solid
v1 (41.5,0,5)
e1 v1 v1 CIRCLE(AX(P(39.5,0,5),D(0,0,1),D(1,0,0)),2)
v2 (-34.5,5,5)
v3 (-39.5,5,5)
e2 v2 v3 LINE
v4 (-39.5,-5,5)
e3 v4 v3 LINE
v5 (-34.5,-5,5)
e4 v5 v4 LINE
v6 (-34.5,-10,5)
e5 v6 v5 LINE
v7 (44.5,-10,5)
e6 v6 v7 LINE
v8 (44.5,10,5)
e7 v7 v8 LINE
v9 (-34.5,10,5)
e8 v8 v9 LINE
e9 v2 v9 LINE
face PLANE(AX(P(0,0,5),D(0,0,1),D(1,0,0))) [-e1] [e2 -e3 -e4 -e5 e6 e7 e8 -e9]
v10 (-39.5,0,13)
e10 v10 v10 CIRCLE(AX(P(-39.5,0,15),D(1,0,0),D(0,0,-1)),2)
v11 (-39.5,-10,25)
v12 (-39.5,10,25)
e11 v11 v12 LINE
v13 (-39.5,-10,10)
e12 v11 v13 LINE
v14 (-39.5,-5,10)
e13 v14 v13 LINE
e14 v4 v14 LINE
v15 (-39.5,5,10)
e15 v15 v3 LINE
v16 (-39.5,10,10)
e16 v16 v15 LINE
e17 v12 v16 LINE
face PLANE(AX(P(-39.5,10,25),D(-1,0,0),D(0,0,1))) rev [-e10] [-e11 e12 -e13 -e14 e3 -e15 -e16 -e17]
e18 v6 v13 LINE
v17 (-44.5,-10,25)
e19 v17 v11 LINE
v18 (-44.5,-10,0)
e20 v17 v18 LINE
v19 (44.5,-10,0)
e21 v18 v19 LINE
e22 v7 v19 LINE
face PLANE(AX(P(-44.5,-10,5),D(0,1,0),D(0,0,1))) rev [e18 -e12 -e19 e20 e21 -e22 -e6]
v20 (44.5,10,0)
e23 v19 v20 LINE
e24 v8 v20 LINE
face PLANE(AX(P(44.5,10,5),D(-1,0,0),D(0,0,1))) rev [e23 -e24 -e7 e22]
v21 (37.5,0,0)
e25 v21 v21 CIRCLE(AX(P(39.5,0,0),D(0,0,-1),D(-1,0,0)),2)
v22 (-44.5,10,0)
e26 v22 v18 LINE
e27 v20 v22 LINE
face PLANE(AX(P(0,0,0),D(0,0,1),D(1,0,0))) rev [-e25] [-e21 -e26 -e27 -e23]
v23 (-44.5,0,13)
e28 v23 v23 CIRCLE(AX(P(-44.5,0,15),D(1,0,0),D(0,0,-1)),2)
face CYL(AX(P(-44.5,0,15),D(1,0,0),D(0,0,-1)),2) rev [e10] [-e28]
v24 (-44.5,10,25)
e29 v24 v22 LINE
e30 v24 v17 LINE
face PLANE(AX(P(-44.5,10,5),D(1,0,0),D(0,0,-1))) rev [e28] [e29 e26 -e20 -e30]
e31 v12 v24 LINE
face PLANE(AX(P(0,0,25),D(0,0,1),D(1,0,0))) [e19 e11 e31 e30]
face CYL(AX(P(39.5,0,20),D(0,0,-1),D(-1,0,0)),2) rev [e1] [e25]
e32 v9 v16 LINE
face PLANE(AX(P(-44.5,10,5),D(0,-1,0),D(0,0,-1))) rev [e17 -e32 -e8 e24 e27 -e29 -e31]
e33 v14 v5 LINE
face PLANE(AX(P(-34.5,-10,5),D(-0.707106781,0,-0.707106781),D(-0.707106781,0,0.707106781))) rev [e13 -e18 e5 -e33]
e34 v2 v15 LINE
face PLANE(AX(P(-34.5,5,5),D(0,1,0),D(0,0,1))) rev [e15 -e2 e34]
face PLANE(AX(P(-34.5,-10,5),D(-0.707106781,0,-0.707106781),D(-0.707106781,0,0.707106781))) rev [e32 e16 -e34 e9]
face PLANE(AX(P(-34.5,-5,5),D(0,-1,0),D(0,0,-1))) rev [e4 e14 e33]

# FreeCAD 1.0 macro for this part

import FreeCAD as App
import Part
import Sketcher
Q = App.Units.Quantity


def add_polygon(sketch, points):
    """Adds a closed chain of lines whose ends are joined by coincident constraints."""
    first, n = sketch.GeometryCount, len(points)
    for a, b in zip(points, points[1:] + points[:1]):
        sketch.addGeometry(Part.LineSegment(App.Vector(*a, 0), App.Vector(*b, 0)), False)
    for i in range(n):
        sketch.addConstraint(Sketcher.Constraint("Coincident", first + i, 2, first + (i + 1) % n, 1))

doc = App.newDocument("Part")
body = doc.addObject("PartDesign::Body", "Body")

sketch1 = body.newObject("Sketcher::SketchObject", "Sketch")
sketch1.AttachmentSupport = (doc.getObject("XY_Plane"), [""])
sketch1.MapMode = "FlatFace"
add_polygon(sketch1, [(-44.5, 10), (-44.5, -10), (44.5, -10), (44.5, 10)])
sketch1.addConstraint(Sketcher.Constraint("Vertical", 0))
sketch1.addConstraint(Sketcher.Constraint("Horizontal", 1))
sketch1.addConstraint(Sketcher.Constraint("Vertical", 2))
sketch1.addConstraint(Sketcher.Constraint("Horizontal", 3))
sketch1.addConstraint(Sketcher.Constraint("Symmetric", 0, 2, 2, 2, -1, 1))
sketch1.addConstraint(Sketcher.Constraint("DistanceX", 1, 1, 1, 2, Q("89 mm")))
sketch1.addConstraint(Sketcher.Constraint("DistanceY", 0, 2, 0, 1, Q("20 mm")))
pad1 = body.newObject("PartDesign::Pad", "Pad")
pad1.Profile = sketch1
pad1.Length = 5

sketch2 = body.newObject("Sketcher::SketchObject", "Sketch001")
sketch2.AttachmentSupport = (doc.getObject("XY_Plane"), [""])
sketch2.MapMode = "FlatFace"
sketch2.AttachmentOffset = App.Placement(App.Vector(0, 0, 5), App.Rotation())
add_polygon(sketch2, [(-44.5, 10), (-44.5, -10), (-39.5, -10), (-39.5, 10)])
sketch2.addConstraint(Sketcher.Constraint("Vertical", 0))
sketch2.addConstraint(Sketcher.Constraint("Horizontal", 1))
sketch2.addConstraint(Sketcher.Constraint("Vertical", 2))
sketch2.addConstraint(Sketcher.Constraint("Horizontal", 3))
sketch2.addConstraint(Sketcher.Constraint("DistanceX", 1, 1, 1, 2, Q("5 mm")))
sketch2.addConstraint(Sketcher.Constraint("DistanceY", 0, 2, 0, 1, Q("20 mm")))
sketch2.addConstraint(Sketcher.Constraint("DistanceY", 0, 2, -1, 1, Q("10 mm")))
sketch2.addConstraint(Sketcher.Constraint("DistanceX", 0, 2, -1, 1, Q("44.5 mm")))
pad2 = body.newObject("PartDesign::Pad", "Pad001")
pad2.Profile = sketch2
pad2.Length = 20

sketch3 = body.newObject("Sketcher::SketchObject", "Sketch002")
sketch3.AttachmentSupport = (doc.getObject("YZ_Plane"), [""])
sketch3.MapMode = "FlatFace"
sketch3.AttachmentOffset = App.Placement(App.Vector(0, 0, -39.5), App.Rotation())
sketch3.addGeometry(Part.Circle(App.Vector(0, 15, 0), App.Vector(0, 0, 1), 2), False)
sketch3.addConstraint(Sketcher.Constraint("PointOnObject", 0, 3, -2))
sketch3.addConstraint(Sketcher.Constraint("Diameter", 0, Q("4 mm")))
sketch3.addConstraint(Sketcher.Constraint("DistanceY", -1, 1, 0, 3, Q("15 mm")))
pocket1 = body.newObject("PartDesign::Pocket", "Pocket")
pocket1.Profile = sketch3
pocket1.Type = "ThroughAll"

sketch4 = body.newObject("Sketcher::SketchObject", "Sketch003")
sketch4.AttachmentSupport = (doc.getObject("XY_Plane"), [""])
sketch4.MapMode = "FlatFace"
sketch4.addGeometry(Part.Circle(App.Vector(39.5, 0, 0), App.Vector(0, 0, 1), 2), False)
sketch4.addConstraint(Sketcher.Constraint("PointOnObject", 0, 3, -1))
sketch4.addConstraint(Sketcher.Constraint("Diameter", 0, Q("4 mm")))
sketch4.addConstraint(Sketcher.Constraint("DistanceX", -1, 1, 0, 3, Q("39.5 mm")))
pocket2 = body.newObject("PartDesign::Pocket", "Pocket001")
pocket2.Profile = sketch4
pocket2.Length = 20
pocket2.Reversed = True

sketch5 = body.newObject("Sketcher::SketchObject", "Sketch004")
sketch5.AttachmentSupport = (doc.getObject("YZ_Plane"), [""])
sketch5.MapMode = "FlatFace"
sketch5.AttachmentOffset = App.Placement(App.Vector(0, 0, -39.5), App.Rotation())
add_polygon(sketch5, [(-5, 10), (-10, 10), (-10, 5), (-5, 5)])
add_polygon(sketch5, [(10, 10), (5, 10), (5, 5), (10, 5)])
sketch5.addConstraint(Sketcher.Constraint("Horizontal", 0))
sketch5.addConstraint(Sketcher.Constraint("Vertical", 1))
sketch5.addConstraint(Sketcher.Constraint("Horizontal", 2))
sketch5.addConstraint(Sketcher.Constraint("Vertical", 3))
sketch5.addConstraint(Sketcher.Constraint("Horizontal", 4))
sketch5.addConstraint(Sketcher.Constraint("Vertical", 5))
sketch5.addConstraint(Sketcher.Constraint("Horizontal", 6))
sketch5.addConstraint(Sketcher.Constraint("Vertical", 7))
sketch5.addConstraint(Sketcher.Constraint("Symmetric", 3, 2, 4, 2, -2))
sketch5.addConstraint(Sketcher.Constraint("Symmetric", 1, 2, 6, 2, -2))
sketch5.addConstraint(Sketcher.Constraint("Equal", 6, 1))
sketch5.addConstraint(Sketcher.Constraint("DistanceX", 0, 2, 0, 1, Q("5 mm")))
sketch5.addConstraint(Sketcher.Constraint("DistanceX", 0, 2, -1, 1, Q("10 mm")))
sketch5.addConstraint(Sketcher.Constraint("DistanceY", -1, 1, 0, 2, Q("10 mm")))
pad3 = body.newObject("PartDesign::Pad", "Pad002")
pad3.Profile = sketch5
pad3.Length = 5

sketch6 = body.newObject("Sketcher::SketchObject", "Sketch005")
sketch6.AttachmentSupport = (doc.getObject("XZ_Plane"), [""])
sketch6.MapMode = "FlatFace"
sketch6.AttachmentOffset = App.Placement(App.Vector(0, 0, -10), App.Rotation())
add_polygon(sketch6, [(-34.5, 5), (-39.5, 10), (-34.5, 10)])
sketch6.addConstraint(Sketcher.Constraint("Horizontal", 1))
sketch6.addConstraint(Sketcher.Constraint("Vertical", 2))
sketch6.addConstraint(Sketcher.Constraint("Equal", 1, 2))
sketch6.addConstraint(Sketcher.Constraint("DistanceX", 1, 1, 1, 2, Q("5 mm")))
sketch6.addConstraint(Sketcher.Constraint("DistanceY", -1, 1, 0, 2, Q("10 mm")))
sketch6.addConstraint(Sketcher.Constraint("DistanceX", 0, 2, -1, 1, Q("39.5 mm")))
pocket3 = body.newObject("PartDesign::Pocket", "Pocket002")
pocket3.Profile = sketch6
pocket3.Type = "ThroughAll"
pocket3.Reversed = True

doc.recompute()
